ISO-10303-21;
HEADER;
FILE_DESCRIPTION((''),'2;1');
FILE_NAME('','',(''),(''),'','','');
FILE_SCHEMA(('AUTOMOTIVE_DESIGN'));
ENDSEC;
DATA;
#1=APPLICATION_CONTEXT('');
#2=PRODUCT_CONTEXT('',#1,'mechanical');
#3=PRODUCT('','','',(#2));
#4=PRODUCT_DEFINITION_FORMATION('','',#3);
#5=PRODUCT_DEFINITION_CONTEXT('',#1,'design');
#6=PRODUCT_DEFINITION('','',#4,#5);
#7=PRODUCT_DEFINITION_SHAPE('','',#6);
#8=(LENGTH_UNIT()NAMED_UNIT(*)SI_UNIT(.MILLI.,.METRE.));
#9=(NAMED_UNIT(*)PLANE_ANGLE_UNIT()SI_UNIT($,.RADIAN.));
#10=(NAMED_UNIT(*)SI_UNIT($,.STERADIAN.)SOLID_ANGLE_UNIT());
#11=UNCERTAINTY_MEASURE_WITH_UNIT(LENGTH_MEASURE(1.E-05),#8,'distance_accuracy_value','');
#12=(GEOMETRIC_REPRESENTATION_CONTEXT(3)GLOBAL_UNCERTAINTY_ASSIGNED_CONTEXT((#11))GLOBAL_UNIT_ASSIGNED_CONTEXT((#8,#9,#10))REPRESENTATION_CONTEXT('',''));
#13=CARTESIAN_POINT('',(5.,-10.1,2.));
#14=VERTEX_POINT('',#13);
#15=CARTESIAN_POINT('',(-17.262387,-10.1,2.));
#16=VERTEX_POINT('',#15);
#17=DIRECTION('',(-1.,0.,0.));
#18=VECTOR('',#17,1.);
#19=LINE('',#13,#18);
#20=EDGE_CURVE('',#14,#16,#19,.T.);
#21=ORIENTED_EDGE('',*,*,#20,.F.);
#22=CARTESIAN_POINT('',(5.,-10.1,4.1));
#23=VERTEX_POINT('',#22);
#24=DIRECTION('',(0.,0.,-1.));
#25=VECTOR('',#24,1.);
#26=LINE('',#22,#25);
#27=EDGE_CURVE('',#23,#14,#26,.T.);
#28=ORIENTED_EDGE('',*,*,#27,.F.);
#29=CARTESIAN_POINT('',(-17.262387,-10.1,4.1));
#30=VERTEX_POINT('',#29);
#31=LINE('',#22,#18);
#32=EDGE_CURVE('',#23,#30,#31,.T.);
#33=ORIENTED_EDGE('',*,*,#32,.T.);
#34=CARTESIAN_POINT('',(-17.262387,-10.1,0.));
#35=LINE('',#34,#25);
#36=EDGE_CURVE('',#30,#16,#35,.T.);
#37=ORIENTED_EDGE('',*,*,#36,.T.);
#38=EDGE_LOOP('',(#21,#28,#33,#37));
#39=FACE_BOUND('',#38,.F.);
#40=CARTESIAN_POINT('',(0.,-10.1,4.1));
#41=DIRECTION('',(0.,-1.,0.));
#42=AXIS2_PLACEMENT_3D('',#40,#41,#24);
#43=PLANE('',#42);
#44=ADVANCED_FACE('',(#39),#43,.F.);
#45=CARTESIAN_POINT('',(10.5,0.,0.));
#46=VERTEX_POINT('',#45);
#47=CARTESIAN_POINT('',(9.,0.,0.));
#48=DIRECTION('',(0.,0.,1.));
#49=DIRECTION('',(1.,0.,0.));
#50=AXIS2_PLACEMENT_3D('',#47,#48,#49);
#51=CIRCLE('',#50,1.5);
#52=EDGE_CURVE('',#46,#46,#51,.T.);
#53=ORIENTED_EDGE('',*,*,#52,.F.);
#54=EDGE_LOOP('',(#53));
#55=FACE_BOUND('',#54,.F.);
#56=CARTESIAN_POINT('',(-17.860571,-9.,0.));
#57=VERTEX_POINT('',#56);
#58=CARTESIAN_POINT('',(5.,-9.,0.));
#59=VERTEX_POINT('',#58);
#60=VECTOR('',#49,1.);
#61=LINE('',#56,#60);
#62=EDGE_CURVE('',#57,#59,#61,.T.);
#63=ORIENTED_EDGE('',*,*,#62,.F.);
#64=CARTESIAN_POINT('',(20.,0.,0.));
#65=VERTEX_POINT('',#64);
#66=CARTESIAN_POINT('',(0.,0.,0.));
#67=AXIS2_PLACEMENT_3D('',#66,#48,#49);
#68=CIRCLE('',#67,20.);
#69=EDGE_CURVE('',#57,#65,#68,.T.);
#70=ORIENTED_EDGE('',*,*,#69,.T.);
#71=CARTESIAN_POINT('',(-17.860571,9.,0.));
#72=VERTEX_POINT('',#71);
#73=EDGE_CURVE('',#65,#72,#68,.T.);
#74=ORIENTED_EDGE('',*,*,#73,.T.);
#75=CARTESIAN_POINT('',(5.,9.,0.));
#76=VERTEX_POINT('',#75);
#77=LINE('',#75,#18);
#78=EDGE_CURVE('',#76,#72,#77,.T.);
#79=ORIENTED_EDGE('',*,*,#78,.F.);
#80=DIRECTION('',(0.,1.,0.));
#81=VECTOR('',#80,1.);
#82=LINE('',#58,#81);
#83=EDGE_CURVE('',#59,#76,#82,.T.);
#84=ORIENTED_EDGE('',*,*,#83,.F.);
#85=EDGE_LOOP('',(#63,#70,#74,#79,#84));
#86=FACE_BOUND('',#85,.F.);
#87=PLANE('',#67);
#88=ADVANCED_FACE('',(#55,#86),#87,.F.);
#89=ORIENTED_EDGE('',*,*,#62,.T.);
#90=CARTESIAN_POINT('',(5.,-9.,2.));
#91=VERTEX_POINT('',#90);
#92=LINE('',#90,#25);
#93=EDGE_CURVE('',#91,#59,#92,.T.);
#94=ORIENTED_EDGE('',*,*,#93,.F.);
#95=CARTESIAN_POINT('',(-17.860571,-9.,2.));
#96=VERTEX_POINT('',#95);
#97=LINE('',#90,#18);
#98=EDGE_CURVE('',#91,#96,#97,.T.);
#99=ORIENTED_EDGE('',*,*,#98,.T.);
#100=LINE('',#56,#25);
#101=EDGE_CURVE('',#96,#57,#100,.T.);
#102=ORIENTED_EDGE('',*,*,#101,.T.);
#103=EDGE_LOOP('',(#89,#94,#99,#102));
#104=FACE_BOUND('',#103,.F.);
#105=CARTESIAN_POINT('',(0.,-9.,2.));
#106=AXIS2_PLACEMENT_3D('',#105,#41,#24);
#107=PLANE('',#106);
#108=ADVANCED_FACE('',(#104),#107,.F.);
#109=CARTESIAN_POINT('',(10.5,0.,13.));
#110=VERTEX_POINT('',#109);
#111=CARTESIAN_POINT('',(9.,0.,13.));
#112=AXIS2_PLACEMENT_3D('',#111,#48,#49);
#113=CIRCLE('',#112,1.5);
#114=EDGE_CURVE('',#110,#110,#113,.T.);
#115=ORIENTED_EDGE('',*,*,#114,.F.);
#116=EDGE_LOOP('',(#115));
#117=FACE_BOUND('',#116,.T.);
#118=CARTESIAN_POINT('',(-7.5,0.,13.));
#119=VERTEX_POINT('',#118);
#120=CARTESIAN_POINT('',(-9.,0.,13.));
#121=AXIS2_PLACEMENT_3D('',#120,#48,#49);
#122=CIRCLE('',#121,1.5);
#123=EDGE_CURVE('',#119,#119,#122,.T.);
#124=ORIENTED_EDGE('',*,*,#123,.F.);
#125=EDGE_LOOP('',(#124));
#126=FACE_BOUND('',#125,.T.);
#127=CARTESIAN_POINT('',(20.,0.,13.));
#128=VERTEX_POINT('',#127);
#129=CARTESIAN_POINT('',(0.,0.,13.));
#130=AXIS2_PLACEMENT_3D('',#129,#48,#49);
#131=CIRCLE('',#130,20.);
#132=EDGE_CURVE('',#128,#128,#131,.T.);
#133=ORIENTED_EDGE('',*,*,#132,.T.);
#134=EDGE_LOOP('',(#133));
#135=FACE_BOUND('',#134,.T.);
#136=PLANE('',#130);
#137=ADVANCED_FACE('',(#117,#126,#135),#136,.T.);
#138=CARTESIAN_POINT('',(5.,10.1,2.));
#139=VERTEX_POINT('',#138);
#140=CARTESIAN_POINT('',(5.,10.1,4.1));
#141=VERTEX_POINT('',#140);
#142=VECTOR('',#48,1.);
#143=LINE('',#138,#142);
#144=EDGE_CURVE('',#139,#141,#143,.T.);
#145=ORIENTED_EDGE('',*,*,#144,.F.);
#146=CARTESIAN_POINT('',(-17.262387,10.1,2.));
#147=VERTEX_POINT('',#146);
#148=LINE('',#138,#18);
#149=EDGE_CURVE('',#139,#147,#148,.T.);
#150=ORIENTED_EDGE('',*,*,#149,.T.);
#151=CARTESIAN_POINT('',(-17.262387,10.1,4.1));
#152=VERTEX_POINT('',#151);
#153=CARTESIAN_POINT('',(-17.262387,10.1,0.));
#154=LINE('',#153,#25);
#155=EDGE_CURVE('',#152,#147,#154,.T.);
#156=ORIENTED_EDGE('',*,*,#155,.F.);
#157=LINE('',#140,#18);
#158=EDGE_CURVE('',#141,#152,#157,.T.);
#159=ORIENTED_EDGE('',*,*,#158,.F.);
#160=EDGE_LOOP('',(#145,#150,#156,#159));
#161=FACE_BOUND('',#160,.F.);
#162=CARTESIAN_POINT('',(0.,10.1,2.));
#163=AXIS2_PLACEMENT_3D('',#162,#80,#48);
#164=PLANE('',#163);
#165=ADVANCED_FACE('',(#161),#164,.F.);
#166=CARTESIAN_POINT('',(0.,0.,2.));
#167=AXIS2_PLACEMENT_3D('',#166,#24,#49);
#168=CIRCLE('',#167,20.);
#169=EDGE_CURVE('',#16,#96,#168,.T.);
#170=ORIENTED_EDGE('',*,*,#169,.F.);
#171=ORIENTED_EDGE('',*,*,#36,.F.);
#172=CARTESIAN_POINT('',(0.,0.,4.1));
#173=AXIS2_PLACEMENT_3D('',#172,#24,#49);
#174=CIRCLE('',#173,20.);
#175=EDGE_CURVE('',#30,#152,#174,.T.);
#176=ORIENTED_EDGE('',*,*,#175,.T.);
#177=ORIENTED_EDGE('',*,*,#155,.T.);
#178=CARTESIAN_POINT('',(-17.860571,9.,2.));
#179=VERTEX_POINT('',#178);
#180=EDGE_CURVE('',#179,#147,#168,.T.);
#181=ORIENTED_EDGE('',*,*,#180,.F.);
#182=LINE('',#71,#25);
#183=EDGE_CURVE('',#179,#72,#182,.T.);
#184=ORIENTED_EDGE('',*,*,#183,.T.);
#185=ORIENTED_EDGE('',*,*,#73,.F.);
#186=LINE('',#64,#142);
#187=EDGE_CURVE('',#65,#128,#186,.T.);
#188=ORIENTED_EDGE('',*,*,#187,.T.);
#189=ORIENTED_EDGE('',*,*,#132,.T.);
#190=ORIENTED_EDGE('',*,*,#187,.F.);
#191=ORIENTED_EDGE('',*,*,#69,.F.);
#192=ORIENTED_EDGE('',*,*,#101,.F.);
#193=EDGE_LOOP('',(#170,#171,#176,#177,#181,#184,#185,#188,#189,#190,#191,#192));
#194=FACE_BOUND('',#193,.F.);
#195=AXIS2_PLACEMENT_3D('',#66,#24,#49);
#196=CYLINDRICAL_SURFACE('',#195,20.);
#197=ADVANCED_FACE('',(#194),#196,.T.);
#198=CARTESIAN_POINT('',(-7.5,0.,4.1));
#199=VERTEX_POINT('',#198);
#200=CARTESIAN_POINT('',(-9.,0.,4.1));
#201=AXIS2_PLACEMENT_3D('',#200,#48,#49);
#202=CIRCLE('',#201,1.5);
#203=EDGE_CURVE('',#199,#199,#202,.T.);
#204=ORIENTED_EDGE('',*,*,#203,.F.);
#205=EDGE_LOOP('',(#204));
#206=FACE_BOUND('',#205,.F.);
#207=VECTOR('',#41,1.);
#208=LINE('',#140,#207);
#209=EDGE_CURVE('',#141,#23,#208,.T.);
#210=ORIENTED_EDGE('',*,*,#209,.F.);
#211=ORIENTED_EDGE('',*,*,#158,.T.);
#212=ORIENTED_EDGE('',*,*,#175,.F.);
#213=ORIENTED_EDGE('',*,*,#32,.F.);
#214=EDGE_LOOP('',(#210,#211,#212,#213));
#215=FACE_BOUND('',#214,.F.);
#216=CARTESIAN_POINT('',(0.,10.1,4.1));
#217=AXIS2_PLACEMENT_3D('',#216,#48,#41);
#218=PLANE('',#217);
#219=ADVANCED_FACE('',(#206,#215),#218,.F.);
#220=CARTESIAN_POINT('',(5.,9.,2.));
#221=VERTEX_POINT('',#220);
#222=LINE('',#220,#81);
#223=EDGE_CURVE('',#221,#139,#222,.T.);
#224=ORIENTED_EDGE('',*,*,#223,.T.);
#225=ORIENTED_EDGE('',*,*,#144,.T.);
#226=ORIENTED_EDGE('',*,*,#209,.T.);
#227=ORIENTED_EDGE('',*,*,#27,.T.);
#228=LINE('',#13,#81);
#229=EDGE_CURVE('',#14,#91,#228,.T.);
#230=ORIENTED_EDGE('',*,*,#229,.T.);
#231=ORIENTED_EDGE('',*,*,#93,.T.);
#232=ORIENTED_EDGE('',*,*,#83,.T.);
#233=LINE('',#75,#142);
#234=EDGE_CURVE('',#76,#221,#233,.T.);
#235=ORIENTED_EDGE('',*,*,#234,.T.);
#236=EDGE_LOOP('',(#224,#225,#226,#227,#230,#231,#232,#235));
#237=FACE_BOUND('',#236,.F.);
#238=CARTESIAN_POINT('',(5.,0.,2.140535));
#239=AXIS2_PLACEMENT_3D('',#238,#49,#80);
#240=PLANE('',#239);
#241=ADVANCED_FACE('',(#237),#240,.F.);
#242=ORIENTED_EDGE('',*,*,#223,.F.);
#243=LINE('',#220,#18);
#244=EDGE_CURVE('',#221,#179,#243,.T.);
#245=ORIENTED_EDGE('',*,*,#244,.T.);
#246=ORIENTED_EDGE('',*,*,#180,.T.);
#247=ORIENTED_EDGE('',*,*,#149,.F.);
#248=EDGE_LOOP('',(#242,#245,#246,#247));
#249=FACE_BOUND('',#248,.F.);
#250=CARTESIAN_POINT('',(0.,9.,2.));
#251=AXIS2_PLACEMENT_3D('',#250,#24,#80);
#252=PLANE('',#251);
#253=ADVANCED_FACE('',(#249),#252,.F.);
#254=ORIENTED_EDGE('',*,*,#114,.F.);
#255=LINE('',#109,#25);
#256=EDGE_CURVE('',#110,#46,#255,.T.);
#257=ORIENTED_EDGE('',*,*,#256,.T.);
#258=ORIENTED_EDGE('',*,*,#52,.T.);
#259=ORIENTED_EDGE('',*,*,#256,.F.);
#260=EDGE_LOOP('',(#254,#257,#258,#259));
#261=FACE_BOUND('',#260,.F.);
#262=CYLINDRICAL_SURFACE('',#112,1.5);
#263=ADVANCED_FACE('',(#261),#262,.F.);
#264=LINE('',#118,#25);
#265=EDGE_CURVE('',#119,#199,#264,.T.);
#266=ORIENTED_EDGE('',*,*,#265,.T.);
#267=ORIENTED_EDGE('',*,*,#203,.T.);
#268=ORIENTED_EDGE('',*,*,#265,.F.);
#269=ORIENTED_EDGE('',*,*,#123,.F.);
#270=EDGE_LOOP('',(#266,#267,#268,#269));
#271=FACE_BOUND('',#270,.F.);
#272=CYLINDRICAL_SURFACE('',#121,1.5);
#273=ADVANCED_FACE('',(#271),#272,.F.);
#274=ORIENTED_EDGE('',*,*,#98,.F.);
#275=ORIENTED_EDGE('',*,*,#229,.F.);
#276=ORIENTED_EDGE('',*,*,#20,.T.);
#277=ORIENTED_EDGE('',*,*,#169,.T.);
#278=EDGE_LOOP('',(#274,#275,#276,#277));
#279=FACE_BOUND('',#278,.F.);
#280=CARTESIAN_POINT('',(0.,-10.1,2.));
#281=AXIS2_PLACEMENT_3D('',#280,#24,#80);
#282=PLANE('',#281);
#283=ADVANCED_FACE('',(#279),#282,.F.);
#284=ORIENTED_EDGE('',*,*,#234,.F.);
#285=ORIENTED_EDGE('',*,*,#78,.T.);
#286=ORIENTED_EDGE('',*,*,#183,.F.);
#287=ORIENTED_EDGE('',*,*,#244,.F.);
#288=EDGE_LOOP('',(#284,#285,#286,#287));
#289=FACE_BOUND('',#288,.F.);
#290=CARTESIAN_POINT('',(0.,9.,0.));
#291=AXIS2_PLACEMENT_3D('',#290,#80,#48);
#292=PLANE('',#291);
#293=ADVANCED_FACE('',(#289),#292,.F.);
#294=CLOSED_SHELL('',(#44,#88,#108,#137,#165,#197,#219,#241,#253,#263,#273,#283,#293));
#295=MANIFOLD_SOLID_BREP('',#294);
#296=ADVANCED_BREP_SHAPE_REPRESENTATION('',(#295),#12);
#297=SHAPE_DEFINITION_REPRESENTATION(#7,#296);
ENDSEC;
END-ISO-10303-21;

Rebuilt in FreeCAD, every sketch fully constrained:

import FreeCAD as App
import Part
import Sketcher
from FreeCAD import Vector
Q = App.Units.Quantity


def add_polygon(sketch, points):
    """Adds a closed chain of lines whose ends are joined by coincident constraints."""
    first, n = sketch.GeometryCount, len(points)
    for a, b in zip(points, points[1:] + points[:1]):
        sketch.addGeometry(Part.LineSegment(App.Vector(*a, 0), App.Vector(*b, 0)), False)
    for i in range(n):
        sketch.addConstraint(Sketcher.Constraint("Coincident", first + i, 2, first + (i + 1) % n, 1))

doc = App.newDocument("Part")
body = doc.addObject("PartDesign::Body", "Body")

sketch1 = body.newObject("Sketcher::SketchObject", "Sketch")
sketch1.AttachmentSupport = (doc.getObject("XY_Plane"), [""])
sketch1.MapMode = "FlatFace"
sketch1.addGeometry(Part.Circle(Vector(0, 0, 0), Vector(0, 0, 1), 20), False)
sketch1.addConstraint(Sketcher.Constraint("Coincident", 0, 3, -1, 1))
sketch1.addConstraint(Sketcher.Constraint("Diameter", 0, Q("40 mm")))
pad1 = body.newObject("PartDesign::Pad", "Pad")
pad1.Profile = sketch1
pad1.Length = 13

sketch2 = body.newObject("Sketcher::SketchObject", "Sketch001")
sketch2.AttachmentSupport = (doc.getObject("YZ_Plane"), [""])
sketch2.MapMode = "FlatFace"
add_polygon(sketch2, [(-9, 2), (-9, 0), (9, 0), (9, 2), (10.1, 2), (10.1, 4.1), (-10.1, 4.1), (-10.1, 2)])
sketch2.addConstraint(Sketcher.Constraint("Vertical", 0))
sketch2.addConstraint(Sketcher.Constraint("Horizontal", 1))
sketch2.addConstraint(Sketcher.Constraint("Vertical", 2))
sketch2.addConstraint(Sketcher.Constraint("Horizontal", 3))
sketch2.addConstraint(Sketcher.Constraint("Vertical", 4))
sketch2.addConstraint(Sketcher.Constraint("Horizontal", 5))
sketch2.addConstraint(Sketcher.Constraint("Vertical", 6))
sketch2.addConstraint(Sketcher.Constraint("Horizontal", 7))
sketch2.addConstraint(Sketcher.Constraint("Symmetric", 0, 2, 1, 2, -1, 1))
sketch2.addConstraint(Sketcher.Constraint("Symmetric", 3, 2, 6, 2, -2))
sketch2.addConstraint(Sketcher.Constraint("DistanceX", 1, 1, 1, 2, Q("18 mm")))
sketch2.addConstraint(Sketcher.Constraint("DistanceY", 0, 2, 0, 1, Q("2 mm")))
sketch2.addConstraint(Sketcher.Constraint("DistanceX", 3, 1, 3, 2, Q("1.1 mm")))
sketch2.addConstraint(Sketcher.Constraint("DistanceY", 4, 1, 4, 2, Q("2.1 mm")))
pocket1 = body.newObject("PartDesign::Pocket", "Pocket")
pocket1.Profile = sketch2
pocket1.Type = "TwoLengths"
pocket1.Length = 25
pocket1.Length2 = 5

sketch3 = body.newObject("Sketcher::SketchObject", "Sketch002")
sketch3.AttachmentSupport = (doc.getObject("XY_Plane"), [""])
sketch3.MapMode = "FlatFace"
sketch3.AttachmentOffset = App.Placement(Vector(0, 0, 13), App.Rotation())
sketch3.addGeometry(Part.Circle(Vector(-9, 0, 0), Vector(0, 0, 1), 1.5), False)
sketch3.addGeometry(Part.Circle(Vector(9, 0, 0), Vector(0, 0, 1), 1.5), False)
sketch3.addConstraint(Sketcher.Constraint("Equal", 0, 1))
sketch3.addConstraint(Sketcher.Constraint("Symmetric", 0, 3, 1, 3, -1, 1))
sketch3.addConstraint(Sketcher.Constraint("PointOnObject", 0, 3, -1))
sketch3.addConstraint(Sketcher.Constraint("Diameter", 0, Q("3 mm")))
sketch3.addConstraint(Sketcher.Constraint("DistanceX", 0, 3, -1, 1, Q("9 mm")))
pocket2 = body.newObject("PartDesign::Pocket", "Pocket001")
pocket2.Profile = sketch3
pocket2.Type = "ThroughAll"

doc.recompute()
